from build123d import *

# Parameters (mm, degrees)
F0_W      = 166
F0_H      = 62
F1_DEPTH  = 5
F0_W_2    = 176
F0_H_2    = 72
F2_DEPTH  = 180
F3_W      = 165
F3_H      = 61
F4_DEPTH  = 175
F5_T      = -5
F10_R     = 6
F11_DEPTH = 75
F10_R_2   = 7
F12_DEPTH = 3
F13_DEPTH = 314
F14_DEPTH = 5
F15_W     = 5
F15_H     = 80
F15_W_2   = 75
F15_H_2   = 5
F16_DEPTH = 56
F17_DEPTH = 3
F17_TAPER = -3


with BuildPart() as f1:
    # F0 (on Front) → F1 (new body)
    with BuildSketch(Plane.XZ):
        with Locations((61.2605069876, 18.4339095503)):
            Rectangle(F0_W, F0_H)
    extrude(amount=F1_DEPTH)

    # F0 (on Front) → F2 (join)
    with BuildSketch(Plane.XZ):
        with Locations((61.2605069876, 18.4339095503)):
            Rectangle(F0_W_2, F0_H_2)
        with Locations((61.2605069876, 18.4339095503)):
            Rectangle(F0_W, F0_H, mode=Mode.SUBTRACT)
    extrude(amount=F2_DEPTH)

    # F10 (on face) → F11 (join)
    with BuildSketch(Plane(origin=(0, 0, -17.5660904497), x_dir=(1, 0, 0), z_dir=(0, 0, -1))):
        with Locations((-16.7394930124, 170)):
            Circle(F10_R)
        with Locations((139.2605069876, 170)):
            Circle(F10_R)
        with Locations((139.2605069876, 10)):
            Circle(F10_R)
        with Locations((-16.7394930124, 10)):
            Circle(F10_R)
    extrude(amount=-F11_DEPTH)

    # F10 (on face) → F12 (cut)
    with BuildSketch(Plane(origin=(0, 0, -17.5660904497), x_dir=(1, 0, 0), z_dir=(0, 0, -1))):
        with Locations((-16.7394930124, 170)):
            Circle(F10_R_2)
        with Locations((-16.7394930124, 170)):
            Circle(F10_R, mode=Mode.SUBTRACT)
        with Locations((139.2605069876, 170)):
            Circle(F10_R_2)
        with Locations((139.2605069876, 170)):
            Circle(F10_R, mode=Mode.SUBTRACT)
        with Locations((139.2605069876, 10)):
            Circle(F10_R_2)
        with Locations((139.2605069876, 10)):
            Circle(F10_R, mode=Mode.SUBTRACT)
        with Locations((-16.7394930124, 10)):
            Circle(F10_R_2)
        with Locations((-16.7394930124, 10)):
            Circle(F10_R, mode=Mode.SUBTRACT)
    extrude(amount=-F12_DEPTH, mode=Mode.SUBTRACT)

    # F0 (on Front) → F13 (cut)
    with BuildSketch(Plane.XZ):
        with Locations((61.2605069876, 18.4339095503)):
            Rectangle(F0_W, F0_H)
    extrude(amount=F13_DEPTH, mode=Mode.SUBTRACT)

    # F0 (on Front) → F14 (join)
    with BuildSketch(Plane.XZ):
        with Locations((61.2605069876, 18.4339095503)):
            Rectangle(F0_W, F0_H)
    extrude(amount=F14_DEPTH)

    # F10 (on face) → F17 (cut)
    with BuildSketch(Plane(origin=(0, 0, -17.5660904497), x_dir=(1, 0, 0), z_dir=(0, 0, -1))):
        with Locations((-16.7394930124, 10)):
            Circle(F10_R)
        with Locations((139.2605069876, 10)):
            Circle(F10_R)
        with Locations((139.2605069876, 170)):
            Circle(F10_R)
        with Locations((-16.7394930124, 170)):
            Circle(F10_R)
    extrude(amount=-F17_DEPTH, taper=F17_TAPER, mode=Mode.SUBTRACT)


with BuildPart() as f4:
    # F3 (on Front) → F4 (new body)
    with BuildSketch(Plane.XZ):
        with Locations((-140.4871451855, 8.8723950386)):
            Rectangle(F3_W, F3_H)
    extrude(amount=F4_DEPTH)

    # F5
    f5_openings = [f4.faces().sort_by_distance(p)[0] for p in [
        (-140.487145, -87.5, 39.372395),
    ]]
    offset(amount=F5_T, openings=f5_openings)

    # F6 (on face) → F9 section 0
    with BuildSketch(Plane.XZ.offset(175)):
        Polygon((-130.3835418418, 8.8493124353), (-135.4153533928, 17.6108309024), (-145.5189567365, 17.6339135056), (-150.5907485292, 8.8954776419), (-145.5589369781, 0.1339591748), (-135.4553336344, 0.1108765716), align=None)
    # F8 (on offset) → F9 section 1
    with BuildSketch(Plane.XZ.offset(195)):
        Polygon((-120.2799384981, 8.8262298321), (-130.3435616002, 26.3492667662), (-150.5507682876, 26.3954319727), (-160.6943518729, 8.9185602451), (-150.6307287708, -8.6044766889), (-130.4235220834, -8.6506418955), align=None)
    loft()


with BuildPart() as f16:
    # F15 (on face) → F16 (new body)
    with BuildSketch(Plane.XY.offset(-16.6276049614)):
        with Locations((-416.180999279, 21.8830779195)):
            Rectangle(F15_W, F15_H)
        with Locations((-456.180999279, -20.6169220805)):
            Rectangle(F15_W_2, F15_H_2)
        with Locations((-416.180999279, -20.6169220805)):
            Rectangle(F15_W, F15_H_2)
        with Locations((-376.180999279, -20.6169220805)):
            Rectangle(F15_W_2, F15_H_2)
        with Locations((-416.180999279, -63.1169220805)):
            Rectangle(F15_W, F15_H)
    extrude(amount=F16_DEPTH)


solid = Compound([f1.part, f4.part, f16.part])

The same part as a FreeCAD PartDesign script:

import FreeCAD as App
import Part
import Sketcher
from FreeCAD import Vector


def faces_at(feature, points):
    """Names of the faces that lie closest to the given points."""
    faces = feature.Shape.Faces
    near = lambda p: min(range(len(faces)), key=lambda i: faces[i].distToShape(Part.Vertex(*p))[0])
    return sorted({f"Face{near(p) + 1}" for p in points})


def add_polygon(sketch, points):
    """Adds a closed chain of lines whose ends are joined by coincident constraints."""
    first, n = sketch.GeometryCount, len(points)
    for a, b in zip(points, points[1:] + points[:1]):
        sketch.addGeometry(Part.LineSegment(App.Vector(*a, 0), App.Vector(*b, 0)), False)
    for i in range(n):
        sketch.addConstraint(Sketcher.Constraint("Coincident", first + i, 2, first + (i + 1) % n, 1))

doc = App.newDocument("Part")
body = doc.addObject("PartDesign::Body", "Body")

# Sketch on XZ plane
sketch1 = doc.addObject("Sketcher::SketchObject", "Sketch")
body.addObject(sketch1)
sketch1.AttachmentSupport = (doc.XZ_Plane, [""])
sketch1.MapMode = "FlatFace"
add_polygon(sketch1, [(-22, 49), (-22, -13), (144, -13), (144, 49)])  # lines 0-3
sketch1.addConstraint([
    Sketcher.Constraint("Vertical", 0),
    Sketcher.Constraint("Horizontal", 1),
    Sketcher.Constraint("Vertical", 2),
    Sketcher.Constraint("Horizontal", 3),
    Sketcher.Constraint("DistanceX", 1, 1, 1, 2, 166.0),
    Sketcher.Constraint("DistanceY", 0, 2, 0, 1, 62.0),
    Sketcher.Constraint("DistanceY", 0, 2, -1, 1, 12.56609),
    Sketcher.Constraint("DistanceX", 0, 2, -1, 1, 21.739493),
])
pad1 = doc.addObject("PartDesign::Pad", "Pad")
body.addObject(pad1)
pad1.Profile = sketch1
pad1.Length = 5

# Sketch on XZ plane
sketch2 = doc.addObject("Sketcher::SketchObject", "Sketch001")
body.addObject(sketch2)
sketch2.AttachmentSupport = (doc.XZ_Plane, [""])
sketch2.MapMode = "FlatFace"
add_polygon(sketch2, [(-27, 54), (-27, -18), (149, -18), (149, 54)])  # lines 0-3
add_polygon(sketch2, [(144, -13), (-22, -13), (-22, 49), (144, 49)])  # lines 4-7
sketch2.addConstraint([
    Sketcher.Constraint("Vertical", 0),
    Sketcher.Constraint("Horizontal", 1),
    Sketcher.Constraint("Vertical", 2),
    Sketcher.Constraint("Horizontal", 3),
    Sketcher.Constraint("Horizontal", 4),
    Sketcher.Constraint("Vertical", 5),
    Sketcher.Constraint("Horizontal", 6),
    Sketcher.Constraint("Vertical", 7),
    Sketcher.Constraint("DistanceX", 1, 1, 1, 2, 176.0),
    Sketcher.Constraint("DistanceX", 4, 2, 4, 1, 166.0),
    Sketcher.Constraint("DistanceY", 0, 2, 0, 1, 72.0),
    Sketcher.Constraint("DistanceY", 5, 1, 5, 2, 62.0),
    Sketcher.Constraint("DistanceX", 0, 2, 4, 2, 5.0),
    Sketcher.Constraint("DistanceY", 0, 2, 4, 2, 5.0),
    Sketcher.Constraint("DistanceY", 0, 2, -1, 1, 17.56609),
    Sketcher.Constraint("DistanceX", 0, 2, -1, 1, 26.739493),
])
pad2 = doc.addObject("PartDesign::Pad", "Pad001")
body.addObject(pad2)
pad2.Profile = sketch2
pad2.Length = 180

# Sketch on XY plane
sketch3 = doc.addObject("Sketcher::SketchObject", "Sketch002")
body.addObject(sketch3)
sketch3.AttachmentSupport = (doc.XY_Plane, [""])
sketch3.MapMode = "FlatFace"
sketch3.AttachmentOffset = App.Placement(Vector(0, 0, -17.56609), App.Rotation())
sketch3.addGeometry([
    Part.Circle(Vector(-17, -170, 0), Vector(0, 0, 1), 6),
    Part.Circle(Vector(139, -170, 0), Vector(0, 0, 1), 6),
    Part.Circle(Vector(139, -10, 0), Vector(0, 0, 1), 6),
    Part.Circle(Vector(-17, -10, 0), Vector(0, 0, 1), 6),
], False)
sketch3.addConstraint([
    Sketcher.Constraint("Equal", 0, 1),
    Sketcher.Constraint("Equal", 1, 2),
    Sketcher.Constraint("Equal", 2, 3),
    Sketcher.Constraint("Horizontal", 0, 3, 1, 3),
    Sketcher.Constraint("Horizontal", 2, 3, 3, 3),
    Sketcher.Constraint("Vertical", 1, 3, 2, 3),
    Sketcher.Constraint("Vertical", 0, 3, 3, 3),
    Sketcher.Constraint("Diameter", 0, 12.0),
    Sketcher.Constraint("DistanceY", 0, 3, -1, 1, 170.0),
    Sketcher.Constraint("DistanceY", 2, 3, -1, 1, 10.0),
    Sketcher.Constraint("DistanceX", 0, 3, 1, 3, 156.0),
    Sketcher.Constraint("DistanceX", 0, 3, -1, 1, 16.739493),
])
pad3 = doc.addObject("PartDesign::Pad", "Pad002")
body.addObject(pad3)
pad3.Profile = sketch3
pad3.Length = 75

# Sketch on XY plane
sketch4 = doc.addObject("Sketcher::SketchObject", "Sketch003")
body.addObject(sketch4)
sketch4.AttachmentSupport = (doc.XY_Plane, [""])
sketch4.MapMode = "FlatFace"
sketch4.AttachmentOffset = App.Placement(Vector(0, 0, -17.56609), App.Rotation())
sketch4.addGeometry([
    Part.Circle(Vector(-17, -170, 0), Vector(0, 0, 1), 7),  # 0
    Part.Circle(Vector(-17, -170, 0), Vector(0, 0, 1), 6),  # 1
    Part.Circle(Vector(139, -170, 0), Vector(0, 0, 1), 7),  # 2
    Part.Circle(Vector(139, -170, 0), Vector(0, 0, 1), 6),  # 3
    Part.Circle(Vector(139, -10, 0), Vector(0, 0, 1), 7),  # 4
    Part.Circle(Vector(139, -10, 0), Vector(0, 0, 1), 6),  # 5
    Part.Circle(Vector(-17, -10, 0), Vector(0, 0, 1), 7),  # 6
    Part.Circle(Vector(-17, -10, 0), Vector(0, 0, 1), 6),  # 7
], False)
sketch4.addConstraint([
    Sketcher.Constraint("Coincident", 1, 3, 0, 3),
    Sketcher.Constraint("Coincident", 3, 3, 2, 3),
    Sketcher.Constraint("Coincident", 5, 3, 4, 3),
    Sketcher.Constraint("Coincident", 7, 3, 6, 3),
    Sketcher.Constraint("Equal", 0, 2),
    Sketcher.Constraint("Equal", 1, 3),
    Sketcher.Constraint("Equal", 2, 4),
    Sketcher.Constraint("Equal", 3, 5),
    Sketcher.Constraint("Equal", 4, 6),
    Sketcher.Constraint("Equal", 5, 7),
    Sketcher.Constraint("Horizontal", 1, 3, 2, 3),
    Sketcher.Constraint("Horizontal", 5, 3, 6, 3),
    Sketcher.Constraint("Vertical", 3, 3, 4, 3),
    Sketcher.Constraint("Vertical", 1, 3, 6, 3),
    Sketcher.Constraint("Diameter", 0, 14.0),
    Sketcher.Constraint("Diameter", 1, 12.0),
    Sketcher.Constraint("DistanceY", 0, 3, -1, 1, 170.0),
    Sketcher.Constraint("DistanceY", 4, 3, -1, 1, 10.0),
    Sketcher.Constraint("DistanceX", 0, 3, 2, 3, 156.0),
    Sketcher.Constraint("DistanceX", 0, 3, -1, 1, 16.739493),
])
pocket1 = doc.addObject("PartDesign::Pocket", "Pocket")
body.addObject(pocket1)
pocket1.Profile = sketch4
pocket1.Length = 3
pocket1.Reversed = True

# Sketch on XZ plane
sketch5 = doc.addObject("Sketcher::SketchObject", "Sketch004")
body.addObject(sketch5)
sketch5.AttachmentSupport = (doc.XZ_Plane, [""])
sketch5.MapMode = "FlatFace"
add_polygon(sketch5, [(-22, 49), (-22, -13), (144, -13), (144, 49)])  # lines 0-3
sketch5.addConstraint([
    Sketcher.Constraint("Vertical", 0),
    Sketcher.Constraint("Horizontal", 1),
    Sketcher.Constraint("Vertical", 2),
    Sketcher.Constraint("Horizontal", 3),
    Sketcher.Constraint("DistanceX", 1, 1, 1, 2, 166.0),
    Sketcher.Constraint("DistanceY", 0, 2, 0, 1, 62.0),
    Sketcher.Constraint("DistanceY", 0, 2, -1, 1, 12.56609),
    Sketcher.Constraint("DistanceX", 0, 2, -1, 1, 21.739493),
])
pocket2 = doc.addObject("PartDesign::Pocket", "Pocket001")
body.addObject(pocket2)
pocket2.Profile = sketch5
pocket2.Length = 314
pocket2.Reversed = True

# Sketch on XZ plane
sketch6 = doc.addObject("Sketcher::SketchObject", "Sketch005")
body.addObject(sketch6)
sketch6.AttachmentSupport = (doc.XZ_Plane, [""])
sketch6.MapMode = "FlatFace"
add_polygon(sketch6, [(-22, 49), (-22, -13), (144, -13), (144, 49)])  # lines 0-3
sketch6.addConstraint([
    Sketcher.Constraint("Vertical", 0),
    Sketcher.Constraint("Horizontal", 1),
    Sketcher.Constraint("Vertical", 2),
    Sketcher.Constraint("Horizontal", 3),
    Sketcher.Constraint("DistanceX", 1, 1, 1, 2, 166.0),
    Sketcher.Constraint("DistanceY", 0, 2, 0, 1, 62.0),
    Sketcher.Constraint("DistanceY", 0, 2, -1, 1, 12.56609),
    Sketcher.Constraint("DistanceX", 0, 2, -1, 1, 21.739493),
])
pad4 = doc.addObject("PartDesign::Pad", "Pad003")
body.addObject(pad4)
pad4.Profile = sketch6
pad4.Length = 5

# Sketch on XY plane
sketch7 = doc.addObject("Sketcher::SketchObject", "Sketch006")
body.addObject(sketch7)
sketch7.AttachmentSupport = (doc.XY_Plane, [""])
sketch7.MapMode = "FlatFace"
sketch7.AttachmentOffset = App.Placement(Vector(0, 0, -17.56609), App.Rotation())
sketch7.addGeometry([
    Part.Circle(Vector(-17, -10, 0), Vector(0, 0, 1), 6),
    Part.Circle(Vector(139, -10, 0), Vector(0, 0, 1), 6),
    Part.Circle(Vector(139, -170, 0), Vector(0, 0, 1), 6),
    Part.Circle(Vector(-17, -170, 0), Vector(0, 0, 1), 6),
], False)
sketch7.addConstraint([
    Sketcher.Constraint("Equal", 0, 1),
    Sketcher.Constraint("Equal", 1, 2),
    Sketcher.Constraint("Equal", 2, 3),
    Sketcher.Constraint("Horizontal", 0, 3, 1, 3),
    Sketcher.Constraint("Horizontal", 2, 3, 3, 3),
    Sketcher.Constraint("Vertical", 1, 3, 2, 3),
    Sketcher.Constraint("Vertical", 0, 3, 3, 3),
    Sketcher.Constraint("Diameter", 0, 12.0),
    Sketcher.Constraint("DistanceY", 0, 3, -1, 1, 10.0),
    Sketcher.Constraint("DistanceY", 2, 3, -1, 1, 170.0),
    Sketcher.Constraint("DistanceX", 0, 3, 1, 3, 156.0),
    Sketcher.Constraint("DistanceX", 0, 3, -1, 1, 16.739493),
])
pocket3 = doc.addObject("PartDesign::Pocket", "Pocket002")
body.addObject(pocket3)
pocket3.Profile = sketch7
pocket3.Length = 3
pocket3.Reversed = True
pocket3.TaperAngle = 3
body2 = doc.addObject("PartDesign::Body", "Body001")

# Sketch on XZ plane
sketch8 = doc.addObject("Sketcher::SketchObject", "Sketch007")
body2.addObject(sketch8)
sketch8.AttachmentSupport = (doc.getObject("XZ_Plane001"), [""])
sketch8.MapMode = "FlatFace"
add_polygon(sketch8, [(-223, 39), (-223, -22), (-58, -22), (-58, 39)])  # lines 0-3
sketch8.addConstraint([
    Sketcher.Constraint("Vertical", 0),
    Sketcher.Constraint("Horizontal", 1),
    Sketcher.Constraint("Vertical", 2),
    Sketcher.Constraint("Horizontal", 3),
    Sketcher.Constraint("DistanceX", 1, 1, 1, 2, 165.0),
    Sketcher.Constraint("DistanceY", 0, 2, 0, 1, 61.0),
    Sketcher.Constraint("DistanceX", 0, 2, -1, 1, 222.987145),
    Sketcher.Constraint("DistanceY", 0, 2, -1, 1, 21.627605),
])
pad5 = doc.addObject("PartDesign::Pad", "Pad004")
body2.addObject(pad5)
pad5.Profile = sketch8
pad5.Length = 175
doc.recompute()

thickness = doc.addObject("PartDesign::Thickness", "Thickness")
body2.addObject(thickness)
thickness.Base = (pad5, faces_at(pad5, [(-140.487, -87.5, 39.372)]))
thickness.Value = 5
thickness.Reversed = True
thickness.Join = "Arc"

# Sketch on XZ plane
sketch9 = doc.addObject("Sketcher::SketchObject", "Sketch008")
body2.addObject(sketch9)
sketch9.AttachmentSupport = (doc.getObject("XZ_Plane001"), [""])
sketch9.MapMode = "FlatFace"
sketch9.AttachmentOffset = App.Placement(Vector(0, 0, 175), App.Rotation())
add_polygon(sketch9, [(-130, 9), (-135, 18), (-146, 18), (-151, 9), (-146, 0), (-135, 0)])  # lines 0-5
sketch9.addConstraint([
    Sketcher.Constraint("Parallel", 0, 3),
    Sketcher.Constraint("Parallel", 1, 4),
    Sketcher.Constraint("Parallel", 2, 5),
    Sketcher.Constraint("Equal", 0, 1),
    Sketcher.Constraint("Equal", 1, 2),
    Sketcher.Constraint("Equal", 2, 3),
    Sketcher.Constraint("DistanceY", 4, 2, 2, 2, 8.784601),
    Sketcher.Constraint("Distance", 0, 10.10363),
    Sketcher.Constraint("DistanceY", -1, 1, 0, 2, 17.610831),
    Sketcher.Constraint("DistanceX", 2, 2, -1, 1, 150.590749),
    Sketcher.Constraint("DistanceY", -1, 1, 3, 2, 0.133959),
    Sketcher.Constraint("DistanceX", 5, 2, -1, 1, 130.383542),
])

# Sketch on XZ plane
sketch10 = doc.addObject("Sketcher::SketchObject", "Sketch009")
body2.addObject(sketch10)
sketch10.AttachmentSupport = (doc.getObject("XZ_Plane001"), [""])
sketch10.MapMode = "FlatFace"
sketch10.AttachmentOffset = App.Placement(Vector(0, 0, 195), App.Rotation())
add_polygon(sketch10, [(-120, 9), (-130, 26), (-151, 26), (-161, 9), (-151, -9), (-130, -9)])  # lines 0-5
sketch10.addConstraint([
    Sketcher.Constraint("Parallel", 0, 3),
    Sketcher.Constraint("Parallel", 1, 4),
    Sketcher.Constraint("Parallel", 2, 5),
    Sketcher.Constraint("Equal", 0, 1),
    Sketcher.Constraint("Equal", 1, 2),
    Sketcher.Constraint("Equal", 2, 3),
    Sketcher.Constraint("Distance", 0, 20.207259),
    Sketcher.Constraint("DistanceX", 0, 2, -1, 1, 130.343562),
    Sketcher.Constraint("DistanceY", -1, 1, 1, 2, 26.395432),
    Sketcher.Constraint("DistanceX", 2, 2, -1, 1, 160.694352),
    Sketcher.Constraint("DistanceX", 3, 2, -1, 1, 150.630729),
    Sketcher.Constraint("DistanceY", 4, 2, -1, 1, 8.650642),
])

additiveloft = doc.addObject("PartDesign::AdditiveLoft", "AdditiveLoft")
body2.addObject(additiveloft)
additiveloft.Profile = sketch9
additiveloft.Sections = [sketch10]
body3 = doc.addObject("PartDesign::Body", "Body002")

# Sketch on XY plane
sketch11 = doc.addObject("Sketcher::SketchObject", "Sketch010")
body3.addObject(sketch11)
sketch11.AttachmentSupport = (doc.getObject("XY_Plane002"), [""])
sketch11.MapMode = "FlatFace"
sketch11.AttachmentOffset = App.Placement(Vector(0, 0, -16.627605), App.Rotation())
add_polygon(sketch11, [(-419, 62), (-419, -18), (-494, -18), (-494, -23), (-419, -23), (-419, -103), (-414, -103), (-414, -23), (-339, -23), (-339, -18), (-414, -18), (-414, 62)])  # lines 0-11
sketch11.addConstraint([
    Sketcher.Constraint("Vertical", 0),
    Sketcher.Constraint("Horizontal", 1),
    Sketcher.Constraint("Vertical", 2),
    Sketcher.Constraint("Horizontal", 3),
    Sketcher.Constraint("Vertical", 4),
    Sketcher.Constraint("Horizontal", 5),
    Sketcher.Constraint("Vertical", 6),
    Sketcher.Constraint("Horizontal", 7),
    Sketcher.Constraint("Vertical", 8),
    Sketcher.Constraint("Horizontal", 9),
    Sketcher.Constraint("Vertical", 10),
    Sketcher.Constraint("Horizontal", 11),
    Sketcher.Constraint("Horizontal", 3, 2, 6, 2),
    Sketcher.Constraint("Horizontal", 1, 2, 8, 2),
    Sketcher.Constraint("Vertical", 0, 2, 3, 2),
    Sketcher.Constraint("Vertical", 6, 2, 9, 2),
    Sketcher.Constraint("Equal", 3, 7),
    Sketcher.Constraint("Equal", 11, 2),
    Sketcher.Constraint("Equal", 0, 4),
    Sketcher.Constraint("DistanceX", 1, 2, 1, 1, 75.0),
    Sketcher.Constraint("DistanceX", 5, 1, 5, 2, 5.0),
    Sketcher.Constraint("DistanceY", 0, 2, 0, 1, 80.0),
    Sketcher.Constraint("DistanceX", 0, 2, -1, 1, 418.680999),
    Sketcher.Constraint("DistanceY", 0, 2, -1, 1, 18.116922),
])
pad6 = doc.addObject("PartDesign::Pad", "Pad005")
body3.addObject(pad6)
pad6.Profile = sketch11
pad6.Length = 56

doc.recompute()
